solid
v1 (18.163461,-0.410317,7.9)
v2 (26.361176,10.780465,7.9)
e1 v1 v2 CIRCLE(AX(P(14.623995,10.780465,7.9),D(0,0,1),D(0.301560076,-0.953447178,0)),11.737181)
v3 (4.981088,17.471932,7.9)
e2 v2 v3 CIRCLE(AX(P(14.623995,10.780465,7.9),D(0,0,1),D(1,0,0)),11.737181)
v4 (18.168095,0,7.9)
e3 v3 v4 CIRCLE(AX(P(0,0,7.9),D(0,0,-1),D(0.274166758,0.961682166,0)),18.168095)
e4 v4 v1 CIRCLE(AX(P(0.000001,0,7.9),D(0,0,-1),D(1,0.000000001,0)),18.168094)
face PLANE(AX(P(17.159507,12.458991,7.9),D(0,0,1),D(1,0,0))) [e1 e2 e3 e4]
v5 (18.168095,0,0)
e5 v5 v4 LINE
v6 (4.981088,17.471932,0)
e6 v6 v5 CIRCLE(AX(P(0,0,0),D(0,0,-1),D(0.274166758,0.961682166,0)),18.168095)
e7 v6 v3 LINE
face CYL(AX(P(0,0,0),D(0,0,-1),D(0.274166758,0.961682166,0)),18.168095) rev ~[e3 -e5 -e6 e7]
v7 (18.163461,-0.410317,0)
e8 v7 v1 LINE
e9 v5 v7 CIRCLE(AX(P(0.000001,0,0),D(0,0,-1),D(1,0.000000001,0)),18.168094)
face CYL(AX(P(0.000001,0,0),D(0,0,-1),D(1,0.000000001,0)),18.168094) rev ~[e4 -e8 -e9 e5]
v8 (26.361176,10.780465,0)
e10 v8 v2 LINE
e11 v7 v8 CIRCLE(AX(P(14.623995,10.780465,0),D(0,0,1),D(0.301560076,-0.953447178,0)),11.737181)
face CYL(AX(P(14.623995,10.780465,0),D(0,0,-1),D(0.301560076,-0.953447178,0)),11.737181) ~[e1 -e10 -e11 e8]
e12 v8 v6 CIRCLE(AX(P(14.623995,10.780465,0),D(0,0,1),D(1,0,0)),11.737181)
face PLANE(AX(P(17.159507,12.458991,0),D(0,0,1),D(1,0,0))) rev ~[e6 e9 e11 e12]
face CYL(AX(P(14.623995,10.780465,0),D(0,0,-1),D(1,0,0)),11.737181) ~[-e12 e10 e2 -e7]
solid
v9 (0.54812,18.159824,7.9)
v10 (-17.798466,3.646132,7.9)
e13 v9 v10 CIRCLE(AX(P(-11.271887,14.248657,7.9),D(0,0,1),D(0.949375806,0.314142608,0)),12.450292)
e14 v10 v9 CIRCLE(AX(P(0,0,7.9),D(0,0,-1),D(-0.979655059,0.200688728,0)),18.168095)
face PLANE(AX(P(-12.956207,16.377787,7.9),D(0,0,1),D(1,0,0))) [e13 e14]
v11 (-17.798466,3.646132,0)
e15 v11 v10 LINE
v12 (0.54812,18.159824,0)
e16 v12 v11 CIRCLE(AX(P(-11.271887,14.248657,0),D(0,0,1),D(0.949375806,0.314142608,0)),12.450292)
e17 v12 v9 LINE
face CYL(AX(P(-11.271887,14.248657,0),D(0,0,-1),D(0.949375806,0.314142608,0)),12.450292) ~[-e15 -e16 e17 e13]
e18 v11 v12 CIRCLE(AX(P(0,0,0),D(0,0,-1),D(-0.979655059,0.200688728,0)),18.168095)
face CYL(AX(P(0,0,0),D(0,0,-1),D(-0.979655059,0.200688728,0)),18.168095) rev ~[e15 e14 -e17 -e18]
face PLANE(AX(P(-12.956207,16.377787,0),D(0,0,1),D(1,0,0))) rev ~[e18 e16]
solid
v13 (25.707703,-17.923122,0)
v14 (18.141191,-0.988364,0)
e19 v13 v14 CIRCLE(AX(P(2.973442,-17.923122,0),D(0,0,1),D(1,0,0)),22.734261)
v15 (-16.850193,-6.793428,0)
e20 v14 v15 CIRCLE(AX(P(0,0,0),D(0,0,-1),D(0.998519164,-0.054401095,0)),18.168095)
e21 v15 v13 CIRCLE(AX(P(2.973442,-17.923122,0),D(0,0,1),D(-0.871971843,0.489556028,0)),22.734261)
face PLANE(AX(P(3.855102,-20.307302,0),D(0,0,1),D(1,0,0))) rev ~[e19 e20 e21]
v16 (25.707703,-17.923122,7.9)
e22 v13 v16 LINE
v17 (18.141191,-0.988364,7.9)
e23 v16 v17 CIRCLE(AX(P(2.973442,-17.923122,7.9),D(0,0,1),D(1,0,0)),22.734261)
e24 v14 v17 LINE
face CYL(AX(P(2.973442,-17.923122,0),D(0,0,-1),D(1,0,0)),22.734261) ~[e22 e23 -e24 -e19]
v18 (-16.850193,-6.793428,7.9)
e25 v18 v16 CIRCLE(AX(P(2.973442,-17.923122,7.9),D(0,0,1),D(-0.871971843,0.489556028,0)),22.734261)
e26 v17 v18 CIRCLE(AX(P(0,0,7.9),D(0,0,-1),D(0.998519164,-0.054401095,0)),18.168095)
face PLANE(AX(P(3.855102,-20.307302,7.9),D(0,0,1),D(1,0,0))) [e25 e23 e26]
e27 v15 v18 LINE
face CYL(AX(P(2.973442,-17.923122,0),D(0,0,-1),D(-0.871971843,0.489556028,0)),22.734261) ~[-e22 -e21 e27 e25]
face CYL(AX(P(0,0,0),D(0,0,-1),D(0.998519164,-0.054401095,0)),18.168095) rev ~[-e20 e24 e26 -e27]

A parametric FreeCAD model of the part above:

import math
import FreeCAD as App
import Part
import Sketcher
from FreeCAD import Vector
Q = App.Units.Quantity

doc = App.newDocument("Part")
body = doc.addObject("PartDesign::Body", "Body")

sketch1 = body.newObject("Sketcher::SketchObject", "Sketch")
sketch1.AttachmentSupport = (doc.getObject("XY_Plane"), [""])
sketch1.MapMode = "FlatFace"
sketch1.addGeometry([
    Part.ArcOfCircle(Part.Circle(Vector(0, 0, 0), Vector(0, 0, 1), 18), math.radians(88), math.radians(168)),
    Part.ArcOfCircle(Part.Circle(Vector(-11, 14, 0), Vector(0, 0, 1), 12), math.radians(18), math.radians(238)),
], False)
sketch1.addConstraint([
    Sketcher.Constraint("Coincident", 0, 1, 1, 1),
    Sketcher.Constraint("Coincident", 1, 2, 0, 2),
    Sketcher.Constraint("Coincident", 0, 3, -1, 1),
    Sketcher.Constraint("Radius", 0, Q("18.168095 mm")),
    Sketcher.Constraint("Radius", 1, Q("12.450292 mm")),
    Sketcher.Constraint("DistanceX", -1, 1, 0, 1, Q("0.54812 mm")),
    Sketcher.Constraint("DistanceY", -1, 1, 1, 2, Q("3.646132 mm")),
])
pad1 = body.newObject("PartDesign::Pad", "Pad")
pad1.Profile = sketch1
pad1.Length = 7.9
body2 = doc.addObject("PartDesign::Body", "Body001")

sketch2 = body2.newObject("Sketcher::SketchObject", "Sketch001")
sketch2.AttachmentSupport = (doc.getObject("XY_Plane001"), [""])
sketch2.MapMode = "FlatFace"
sketch2.addGeometry([
    Part.ArcOfCircle(Part.Circle(Vector(3, -18, 0), Vector(0, 0, 1), 23), math.radians(0), math.radians(48)),
    Part.ArcOfCircle(Part.Circle(Vector(0, 0, 0), Vector(0, 0, 1), 18), math.radians(-158), math.radians(-3)),
    Part.ArcOfCircle(Part.Circle(Vector(3, -18, 0), Vector(0, 0, 1), 23), math.radians(151), math.radians(360)),
], False)
sketch2.addConstraint([
    Sketcher.Constraint("Coincident", 0, 2, 1, 2),
    Sketcher.Constraint("Coincident", 1, 1, 2, 1),
    Sketcher.Constraint("Tangent", 2, 2, 0, 1),
    Sketcher.Constraint("Coincident", 1, 3, -1, 1),
    Sketcher.Constraint("Equal", 0, 2),
    Sketcher.Constraint("Horizontal", 0, 3, 2, 2),
    Sketcher.Constraint("Radius", 0, Q("22.734261 mm")),
    Sketcher.Constraint("Radius", 1, Q("18.168095 mm")),
    Sketcher.Constraint("DistanceY", 0, 3, -1, 1, Q("17.923122 mm")),
    Sketcher.Constraint("DistanceX", 0, 3, 0, 2, Q("15.167748 mm")),
])
pad2 = body2.newObject("PartDesign::Pad", "Pad001")
pad2.Profile = sketch2
pad2.Length = 7.9
body3 = doc.addObject("PartDesign::Body", "Body002")

sketch3 = body3.newObject("Sketcher::SketchObject", "Sketch002")
sketch3.AttachmentSupport = (doc.getObject("XY_Plane002"), [""])
sketch3.MapMode = "FlatFace"
sketch3.addGeometry([
    Part.ArcOfCircle(Part.Circle(Vector(0, 0, 0), Vector(0, 0, 1), 18.17), math.radians(0), math.radians(74)),
    Part.ArcOfCircle(Part.Circle(Vector(0, 0, 0), Vector(0, 0, 1), 18.17), math.radians(-1.29), math.radians(0)),
    Part.ArcOfCircle(Part.Circle(Vector(14.62, 10.78, 0), Vector(0, 0, 1), 11.74), math.radians(-72), math.radians(0)),
    Part.ArcOfCircle(Part.Circle(Vector(14.62, 10.78, 0), Vector(0, 0, 1), 11.74), math.radians(0), math.radians(145)),
], False)
sketch3.addConstraint([
    Sketcher.Constraint("Tangent", 0, 1, 1, 2),
    Sketcher.Constraint("Coincident", 1, 1, 2, 1),
    Sketcher.Constraint("Tangent", 2, 2, 3, 1),
    Sketcher.Constraint("Coincident", 3, 2, 0, 2),
    Sketcher.Constraint("Coincident", 0, 3, -1, 1),
    Sketcher.Constraint("Equal", 0, 1),
    Sketcher.Constraint("Equal", 2, 3),
    Sketcher.Constraint("PointOnObject", 0, 1, -1),
    Sketcher.Constraint("Horizontal", 3, 3, 2, 2),
    Sketcher.Constraint("Radius", 2, Q("11.737181 mm")),
    Sketcher.Constraint("Radius", 0, Q("18.168095 mm")),
    Sketcher.Constraint("DistanceX", 2, 3, 0, 1, Q("3.544099 mm")),
    Sketcher.Constraint("DistanceX", -1, 1, 1, 1, Q("18.163461 mm")),
])
pad3 = body3.newObject("PartDesign::Pad", "Pad002")
pad3.Profile = sketch3
pad3.Length = 7.9

doc.recompute()
